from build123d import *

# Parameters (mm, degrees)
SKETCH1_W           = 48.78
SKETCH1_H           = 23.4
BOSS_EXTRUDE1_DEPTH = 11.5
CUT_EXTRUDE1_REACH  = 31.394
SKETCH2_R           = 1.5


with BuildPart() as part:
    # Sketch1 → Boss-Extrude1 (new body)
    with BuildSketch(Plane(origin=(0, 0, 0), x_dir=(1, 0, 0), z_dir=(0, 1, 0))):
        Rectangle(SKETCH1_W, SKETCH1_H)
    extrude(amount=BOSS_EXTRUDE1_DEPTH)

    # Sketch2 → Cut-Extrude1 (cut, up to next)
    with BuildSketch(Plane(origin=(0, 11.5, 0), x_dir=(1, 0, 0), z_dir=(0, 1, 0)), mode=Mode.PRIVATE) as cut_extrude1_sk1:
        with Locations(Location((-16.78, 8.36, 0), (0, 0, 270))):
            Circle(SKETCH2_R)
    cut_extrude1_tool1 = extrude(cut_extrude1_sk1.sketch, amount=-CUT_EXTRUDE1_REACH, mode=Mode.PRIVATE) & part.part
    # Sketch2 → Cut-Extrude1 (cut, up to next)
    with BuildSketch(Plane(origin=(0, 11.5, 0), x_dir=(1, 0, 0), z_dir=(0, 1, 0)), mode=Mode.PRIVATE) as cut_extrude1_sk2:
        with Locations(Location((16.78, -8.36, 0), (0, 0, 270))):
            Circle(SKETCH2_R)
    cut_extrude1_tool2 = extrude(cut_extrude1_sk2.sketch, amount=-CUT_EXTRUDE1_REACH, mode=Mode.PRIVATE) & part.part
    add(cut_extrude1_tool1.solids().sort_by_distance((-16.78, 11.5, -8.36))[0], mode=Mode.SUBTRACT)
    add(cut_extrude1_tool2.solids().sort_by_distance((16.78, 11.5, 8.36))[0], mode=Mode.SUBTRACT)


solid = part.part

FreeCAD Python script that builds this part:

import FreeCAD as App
import Part
import Sketcher

V = App.Vector
Q = App.Units.Quantity


def add_polygon(sketch, points):
    """Adds a closed chain of lines whose ends are joined by coincident constraints."""
    first, n = sketch.GeometryCount, len(points)
    for a, b in zip(points, points[1:] + points[:1]):
        sketch.addGeometry(Part.LineSegment(App.Vector(*a, 0), App.Vector(*b, 0)), False)
    for i in range(n):
        sketch.addConstraint(Sketcher.Constraint("Coincident", first + i, 2, first + (i + 1) % n, 1))

doc = App.newDocument("Part")
body = doc.addObject("PartDesign::Body", "Body")

# Sketch on XZ plane
sketch1 = body.newObject("Sketcher::SketchObject", "Sketch")
sketch1.AttachmentSupport = (doc.getObject("XZ_Plane"), [""])
sketch1.MapMode = "FlatFace"
add_polygon(sketch1, [(-24, -12), (-24, 12), (24, 12), (24, -12)])  # lines 0-3
sketch1.addConstraint([
    Sketcher.Constraint("Vertical", 0),
    Sketcher.Constraint("Horizontal", 1),
    Sketcher.Constraint("Vertical", 2),
    Sketcher.Constraint("Horizontal", 3),
    Sketcher.Constraint("Symmetric", 0, 2, 2, 2, -1, 1),
    Sketcher.Constraint("DistanceY", 0, 1, 0, 2, Q("23.4 mm")),
    Sketcher.Constraint("DistanceX", 1, 1, 1, 2, Q("48.78 mm")),
])
pad1 = body.newObject("PartDesign::Pad", "Pad")
pad1.Profile = sketch1
pad1.Length = 11.5
pad1.Reversed = True

# Sketch on XZ plane
sketch2 = body.newObject("Sketcher::SketchObject", "Sketch001")
sketch2.AttachmentSupport = (doc.getObject("XZ_Plane"), [""])
sketch2.MapMode = "FlatFace"
sketch2.AttachmentOffset = App.Placement(V(0, 0, -11.5), App.Rotation())
sketch2.addGeometry(Part.Circle(V(-16.8, -8.4, 0), V(0, 0, 1), 1.5), False)
sketch2.addConstraint([
    Sketcher.Constraint("Diameter", 0, Q("3 mm")),
    Sketcher.Constraint("DistanceX", 0, 3, -1, 1, Q("16.78 mm")),
    Sketcher.Constraint("DistanceY", 0, 3, -1, 1, Q("8.36 mm")),
])
pocket1 = body.newObject("PartDesign::Pocket", "Pocket")
pocket1.Profile = sketch2
pocket1.Type = "UpToFirst"
pocket1.Reversed = True

# Sketch on XZ plane
sketch3 = body.newObject("Sketcher::SketchObject", "Sketch002")
sketch3.AttachmentSupport = (doc.getObject("XZ_Plane"), [""])
sketch3.MapMode = "FlatFace"
sketch3.AttachmentOffset = App.Placement(V(0, 0, -11.5), App.Rotation())
sketch3.addGeometry(Part.Circle(V(16.8, 8.4, 0), V(0, 0, 1), 1.5), False)
sketch3.addConstraint([
    Sketcher.Constraint("Diameter", 0, Q("3 mm")),
    Sketcher.Constraint("DistanceX", -1, 1, 0, 3, Q("16.78 mm")),
    Sketcher.Constraint("DistanceY", -1, 1, 0, 3, Q("8.36 mm")),
])
pocket2 = body.newObject("PartDesign::Pocket", "Pocket001")
pocket2.Profile = sketch3
pocket2.Type = "UpToFirst"
pocket2.Reversed = True

doc.recompute()
